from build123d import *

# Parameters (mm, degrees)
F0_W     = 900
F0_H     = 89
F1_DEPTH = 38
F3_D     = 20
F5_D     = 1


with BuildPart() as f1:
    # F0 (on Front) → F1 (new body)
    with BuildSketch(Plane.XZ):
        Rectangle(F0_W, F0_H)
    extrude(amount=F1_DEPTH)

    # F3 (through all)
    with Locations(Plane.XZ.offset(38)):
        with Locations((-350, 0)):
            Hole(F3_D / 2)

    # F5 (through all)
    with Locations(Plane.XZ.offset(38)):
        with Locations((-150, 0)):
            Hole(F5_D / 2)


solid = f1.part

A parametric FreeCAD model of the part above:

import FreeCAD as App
import Part
import Sketcher
Q = App.Units.Quantity

doc = App.newDocument("Part")
body = doc.addObject("PartDesign::Body", "Body")

# Sketch on XZ plane
sketch1 = body.newObject("Sketcher::SketchObject", "Sketch")
sketch1.AttachmentSupport = (doc.getObject("XZ_Plane"), [""])
sketch1.MapMode = "FlatFace"
sketch1.addGeometry([
    Part.LineSegment(App.Vector(-450, 44, 0), App.Vector(-450, -44, 0)),
    Part.LineSegment(App.Vector(-450, -44, 0), App.Vector(450, -44, 0)),
    Part.LineSegment(App.Vector(450, -44, 0), App.Vector(450, 44, 0)),
    Part.LineSegment(App.Vector(450, 44, 0), App.Vector(-450, 44, 0)),
], False)
sketch1.addConstraint([
    Sketcher.Constraint("Coincident", 0, 2, 1, 1),
    Sketcher.Constraint("Coincident", 1, 2, 2, 1),
    Sketcher.Constraint("Coincident", 2, 2, 3, 1),
    Sketcher.Constraint("Coincident", 3, 2, 0, 1),
    Sketcher.Constraint("Vertical", 0),
    Sketcher.Constraint("Horizontal", 1),
    Sketcher.Constraint("Vertical", 2),
    Sketcher.Constraint("Horizontal", 3),
    Sketcher.Constraint("Symmetric", 0, 2, 2, 2, -1, 1),
    Sketcher.Constraint("DistanceX", 1, 1, 1, 2, Q("900 mm")),
    Sketcher.Constraint("DistanceY", 0, 2, 0, 1, Q("89 mm")),
])
pad1 = body.newObject("PartDesign::Pad", "Pad")
pad1.Profile = sketch1
pad1.Length = 38

# Sketch on XZ plane
sketch2 = body.newObject("Sketcher::SketchObject", "Sketch001")
sketch2.AttachmentSupport = (doc.getObject("XZ_Plane"), [""])
sketch2.MapMode = "FlatFace"
sketch2.AttachmentOffset = App.Placement(App.Vector(0, 0, 38), App.Rotation())
sketch2.addGeometry(Part.Circle(App.Vector(-350, 0, 0), App.Vector(0, 0, 1), 10), False)
sketch2.addConstraint([
    Sketcher.Constraint("PointOnObject", 0, 3, -1),
    Sketcher.Constraint("Diameter", 0, Q("20 mm")),
    Sketcher.Constraint("DistanceX", 0, 3, -1, 1, Q("350 mm")),
])
doc.recompute()
hole = body.newObject("PartDesign::Hole", "Hole")
hole.Profile = sketch2
hole.ThreadType = "None"
hole.Diameter = 20
hole.DepthType = "ThroughAll"

# Sketch on XZ plane
sketch3 = body.newObject("Sketcher::SketchObject", "Sketch002")
sketch3.AttachmentSupport = (doc.getObject("XZ_Plane"), [""])
sketch3.MapMode = "FlatFace"
sketch3.AttachmentOffset = App.Placement(App.Vector(0, 0, 38), App.Rotation())
sketch3.addGeometry(Part.Circle(App.Vector(-150, 0, 0), App.Vector(0, 0, 1), 0.5), False)
sketch3.addConstraint([
    Sketcher.Constraint("PointOnObject", 0, 3, -1),
    Sketcher.Constraint("Diameter", 0, Q("1 mm")),
    Sketcher.Constraint("DistanceX", 0, 3, -1, 1, Q("150 mm")),
])
doc.recompute()
hole2 = body.newObject("PartDesign::Hole", "Hole001")
hole2.Profile = sketch3
hole2.ThreadType = "None"
hole2.Diameter = 1
hole2.DepthType = "ThroughAll"

doc.recompute()
